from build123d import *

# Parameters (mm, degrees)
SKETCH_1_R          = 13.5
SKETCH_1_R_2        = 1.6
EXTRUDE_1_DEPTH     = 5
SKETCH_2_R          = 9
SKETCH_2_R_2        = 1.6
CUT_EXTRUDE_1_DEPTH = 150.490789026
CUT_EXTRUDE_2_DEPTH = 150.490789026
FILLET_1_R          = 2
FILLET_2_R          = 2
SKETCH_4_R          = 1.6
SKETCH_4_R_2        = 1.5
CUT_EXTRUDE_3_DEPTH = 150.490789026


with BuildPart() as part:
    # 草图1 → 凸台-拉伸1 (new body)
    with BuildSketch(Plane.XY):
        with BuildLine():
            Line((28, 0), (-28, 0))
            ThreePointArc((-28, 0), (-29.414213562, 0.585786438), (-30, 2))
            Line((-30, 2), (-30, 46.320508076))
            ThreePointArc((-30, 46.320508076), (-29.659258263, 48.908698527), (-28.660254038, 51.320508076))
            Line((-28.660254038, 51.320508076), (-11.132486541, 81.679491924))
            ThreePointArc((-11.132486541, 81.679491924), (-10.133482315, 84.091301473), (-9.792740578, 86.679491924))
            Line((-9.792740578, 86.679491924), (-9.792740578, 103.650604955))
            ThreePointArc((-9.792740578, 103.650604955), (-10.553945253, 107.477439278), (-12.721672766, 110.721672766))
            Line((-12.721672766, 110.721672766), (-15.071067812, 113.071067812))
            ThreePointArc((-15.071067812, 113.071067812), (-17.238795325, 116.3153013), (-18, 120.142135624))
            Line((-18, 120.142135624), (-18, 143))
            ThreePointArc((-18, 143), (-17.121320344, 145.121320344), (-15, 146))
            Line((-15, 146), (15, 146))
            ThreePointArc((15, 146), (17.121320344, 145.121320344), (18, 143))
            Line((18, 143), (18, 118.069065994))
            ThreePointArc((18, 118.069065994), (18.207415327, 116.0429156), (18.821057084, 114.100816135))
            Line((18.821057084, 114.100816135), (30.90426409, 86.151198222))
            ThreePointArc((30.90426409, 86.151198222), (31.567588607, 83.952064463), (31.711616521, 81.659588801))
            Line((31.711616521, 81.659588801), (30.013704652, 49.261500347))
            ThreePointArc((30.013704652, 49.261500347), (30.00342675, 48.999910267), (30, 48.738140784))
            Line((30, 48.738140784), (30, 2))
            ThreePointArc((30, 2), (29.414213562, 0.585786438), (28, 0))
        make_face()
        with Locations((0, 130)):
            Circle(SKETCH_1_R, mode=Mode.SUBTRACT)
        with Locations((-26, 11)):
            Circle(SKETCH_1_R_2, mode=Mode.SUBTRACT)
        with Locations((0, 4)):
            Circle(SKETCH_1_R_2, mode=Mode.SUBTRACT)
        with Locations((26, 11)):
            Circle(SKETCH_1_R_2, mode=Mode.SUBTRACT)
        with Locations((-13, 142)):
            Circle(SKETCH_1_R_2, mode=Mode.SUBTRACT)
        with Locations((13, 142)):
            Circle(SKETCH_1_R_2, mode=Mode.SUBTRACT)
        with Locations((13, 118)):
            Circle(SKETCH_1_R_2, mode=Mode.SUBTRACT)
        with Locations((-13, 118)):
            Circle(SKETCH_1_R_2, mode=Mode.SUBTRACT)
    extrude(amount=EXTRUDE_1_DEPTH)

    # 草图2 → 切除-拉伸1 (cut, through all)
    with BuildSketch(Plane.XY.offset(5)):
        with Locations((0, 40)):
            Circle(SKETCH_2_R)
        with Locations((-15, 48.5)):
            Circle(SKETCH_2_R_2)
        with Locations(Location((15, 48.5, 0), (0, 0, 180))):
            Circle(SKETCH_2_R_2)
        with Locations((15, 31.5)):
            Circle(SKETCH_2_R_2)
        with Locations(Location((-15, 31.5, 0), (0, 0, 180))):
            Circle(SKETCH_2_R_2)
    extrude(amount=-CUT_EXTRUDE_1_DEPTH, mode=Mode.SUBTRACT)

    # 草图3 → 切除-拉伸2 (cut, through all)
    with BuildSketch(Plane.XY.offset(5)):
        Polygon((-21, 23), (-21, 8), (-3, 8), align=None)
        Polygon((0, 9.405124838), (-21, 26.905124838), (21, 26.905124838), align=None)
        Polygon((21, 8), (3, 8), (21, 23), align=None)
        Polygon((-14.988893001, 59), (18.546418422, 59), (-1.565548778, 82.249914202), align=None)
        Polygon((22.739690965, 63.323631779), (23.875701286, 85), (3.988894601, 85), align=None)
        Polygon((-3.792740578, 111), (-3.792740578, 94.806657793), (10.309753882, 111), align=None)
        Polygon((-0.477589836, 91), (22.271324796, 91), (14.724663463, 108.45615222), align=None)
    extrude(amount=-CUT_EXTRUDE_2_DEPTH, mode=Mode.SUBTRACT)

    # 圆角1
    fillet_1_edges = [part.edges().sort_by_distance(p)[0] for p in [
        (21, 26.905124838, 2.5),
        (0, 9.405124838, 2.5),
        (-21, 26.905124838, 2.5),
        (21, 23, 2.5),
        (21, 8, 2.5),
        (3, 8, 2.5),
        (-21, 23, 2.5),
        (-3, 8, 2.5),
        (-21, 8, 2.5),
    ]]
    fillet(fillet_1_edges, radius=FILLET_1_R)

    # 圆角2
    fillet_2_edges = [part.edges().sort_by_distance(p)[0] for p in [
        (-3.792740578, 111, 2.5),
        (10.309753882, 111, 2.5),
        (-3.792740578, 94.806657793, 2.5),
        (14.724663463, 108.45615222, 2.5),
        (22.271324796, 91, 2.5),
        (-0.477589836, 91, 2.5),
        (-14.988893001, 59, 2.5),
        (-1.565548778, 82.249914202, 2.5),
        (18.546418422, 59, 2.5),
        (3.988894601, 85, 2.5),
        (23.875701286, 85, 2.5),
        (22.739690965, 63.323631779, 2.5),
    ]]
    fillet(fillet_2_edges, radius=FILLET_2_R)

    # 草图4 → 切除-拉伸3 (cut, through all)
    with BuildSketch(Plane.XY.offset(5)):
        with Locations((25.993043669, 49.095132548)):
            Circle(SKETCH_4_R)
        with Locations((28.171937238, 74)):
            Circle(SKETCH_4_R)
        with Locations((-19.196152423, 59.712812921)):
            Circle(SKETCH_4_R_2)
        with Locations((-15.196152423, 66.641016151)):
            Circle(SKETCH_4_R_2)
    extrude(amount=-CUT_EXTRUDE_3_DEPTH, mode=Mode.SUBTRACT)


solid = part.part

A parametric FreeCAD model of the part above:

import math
import FreeCAD as App
import Part
import Sketcher
from FreeCAD import Vector
Q = App.Units.Quantity


def edges_at(feature, points):
    """Names of the edges that pass closest to the given points."""
    edges = feature.Shape.Edges
    near = lambda p: min(range(len(edges)), key=lambda i: edges[i].distToShape(Part.Vertex(*p))[0])
    return sorted({f"Edge{near(p) + 1}" for p in points})

doc = App.newDocument("Part")
body = doc.addObject("PartDesign::Body", "Body")

# Sketch on XY plane
sketch1 = doc.addObject("Sketcher::SketchObject", "Sketch")
body.addObject(sketch1)
sketch1.AttachmentSupport = (doc.XY_Plane, [""])
sketch1.MapMode = "FlatFace"
sketch1.addGeometry([
    Part.LineSegment(Vector(-28, 0, 0), Vector(28, 0, 0)),  # 0
    Part.ArcOfCircle(Part.Circle(Vector(28, 2, 0), Vector(0, 0, 1), 2), math.radians(-90), math.radians(0)),  # 1
    Part.LineSegment(Vector(30, 2, 0), Vector(30, 48.7, 0)),  # 2
    Part.ArcOfCircle(Part.Circle(Vector(40, 48.7, 0), Vector(0, 0, 1), 10), math.radians(177), math.radians(180)),  # 3
    Part.LineSegment(Vector(30, 49.3, 0), Vector(31.7, 81.7, 0)),  # 4
    Part.ArcOfCircle(Part.Circle(Vector(21.7, 82.2, 0), Vector(0, 0, 1), 10), math.radians(-3), math.radians(23)),  # 5
    Part.LineSegment(Vector(30.9, 86.2, 0), Vector(18.8, 114.1, 0)),  # 6
    Part.ArcOfCircle(Part.Circle(Vector(28, 118.1, 0), Vector(0, 0, 1), 10), math.radians(-180), math.radians(-157)),  # 7
    Part.LineSegment(Vector(18, 118.1, 0), Vector(18, 143, 0)),  # 8
    Part.ArcOfCircle(Part.Circle(Vector(15, 143, 0), Vector(0, 0, 1), 3), math.radians(0), math.radians(90)),  # 9
    Part.LineSegment(Vector(15, 146, 0), Vector(-15, 146, 0)),  # 10
    Part.ArcOfCircle(Part.Circle(Vector(-15, 143, 0), Vector(0, 0, 1), 3), math.radians(90), math.radians(180)),  # 11
    Part.LineSegment(Vector(-18, 143, 0), Vector(-18, 120.1, 0)),  # 12
    Part.ArcOfCircle(Part.Circle(Vector(-8, 120.1, 0), Vector(0, 0, 1), 10), math.radians(180), math.radians(225)),  # 13
    Part.LineSegment(Vector(-15.1, 113.1, 0), Vector(-12.7, 110.7, 0)),  # 14
    Part.ArcOfCircle(Part.Circle(Vector(-19.8, 103.7, 0), Vector(0, 0, 1), 10), math.radians(0), math.radians(45)),  # 15
    Part.LineSegment(Vector(-9.8, 103.7, 0), Vector(-9.8, 86.7, 0)),  # 16
    Part.ArcOfCircle(Part.Circle(Vector(-19.8, 86.7, 0), Vector(0, 0, 1), 10), math.radians(-30), math.radians(0)),  # 17
    Part.LineSegment(Vector(-11.1, 81.7, 0), Vector(-28.7, 51.3, 0)),  # 18
    Part.ArcOfCircle(Part.Circle(Vector(-20, 46.3, 0), Vector(0, 0, 1), 10), math.radians(150), math.radians(180)),  # 19
    Part.LineSegment(Vector(-30, 46.3, 0), Vector(-30, 2, 0)),  # 20
    Part.ArcOfCircle(Part.Circle(Vector(-28, 2, 0), Vector(0, 0, 1), 2), math.radians(-180), math.radians(-90)),  # 21
    Part.Circle(Vector(26, 11, 0), Vector(0, 0, 1), 1.6),  # 22
    Part.Circle(Vector(0, 4, 0), Vector(0, 0, 1), 1.6),  # 23
    Part.Circle(Vector(-26, 11, 0), Vector(0, 0, 1), 1.6),  # 24
    Part.Circle(Vector(13, 118, 0), Vector(0, 0, 1), 1.6),  # 25
    Part.Circle(Vector(13, 142, 0), Vector(0, 0, 1), 1.6),  # 26
    Part.Circle(Vector(-13, 118, 0), Vector(0, 0, 1), 1.6),  # 27
    Part.Circle(Vector(0, 130, 0), Vector(0, 0, 1), 13.5),  # 28
    Part.Circle(Vector(-13, 142, 0), Vector(0, 0, 1), 1.6),  # 29
], False)
sketch1.addConstraint([
    Sketcher.Constraint("Tangent", 0, 2, 1, 1),
    Sketcher.Constraint("Tangent", 1, 2, 2, 1),
    Sketcher.Constraint("Tangent", 2, 2, 3, 2),
    Sketcher.Constraint("Tangent", 3, 1, 4, 1),
    Sketcher.Constraint("Tangent", 4, 2, 5, 1),
    Sketcher.Constraint("Tangent", 5, 2, 6, 1),
    Sketcher.Constraint("Tangent", 6, 2, 7, 2),
    Sketcher.Constraint("Tangent", 7, 1, 8, 1),
    Sketcher.Constraint("Tangent", 8, 2, 9, 1),
    Sketcher.Constraint("Tangent", 9, 2, 10, 1),
    Sketcher.Constraint("Tangent", 10, 2, 11, 1),
    Sketcher.Constraint("Tangent", 11, 2, 12, 1),
    Sketcher.Constraint("Tangent", 12, 2, 13, 1),
    Sketcher.Constraint("Tangent", 13, 2, 14, 1),
    Sketcher.Constraint("Tangent", 14, 2, 15, 2),
    Sketcher.Constraint("Tangent", 15, 1, 16, 1),
    Sketcher.Constraint("Tangent", 16, 2, 17, 2),
    Sketcher.Constraint("Tangent", 17, 1, 18, 1),
    Sketcher.Constraint("Tangent", 18, 2, 19, 1),
    Sketcher.Constraint("Tangent", 19, 2, 20, 1),
    Sketcher.Constraint("Tangent", 20, 2, 21, 1),
    Sketcher.Constraint("Tangent", 21, 2, 0, 1),
    Sketcher.Constraint("Horizontal", 0),
    Sketcher.Constraint("Vertical", 2),
    Sketcher.Constraint("Vertical", 8),
    Sketcher.Constraint("Horizontal", 10),
    Sketcher.Constraint("Vertical", 12),
    Sketcher.Constraint("Vertical", 16),
    Sketcher.Constraint("Vertical", 20),
    Sketcher.Constraint("Equal", 3, 5),
    Sketcher.Constraint("Equal", 5, 7),
    Sketcher.Constraint("Equal", 9, 11),
    Sketcher.Constraint("Equal", 7, 13),
    Sketcher.Constraint("Equal", 13, 15),
    Sketcher.Constraint("Equal", 15, 17),
    Sketcher.Constraint("Equal", 17, 19),
    Sketcher.Constraint("Equal", 1, 21),
    Sketcher.Constraint("Equal", 22, 23),
    Sketcher.Constraint("Equal", 23, 24),
    Sketcher.Constraint("Equal", 24, 25),
    Sketcher.Constraint("Equal", 25, 26),
    Sketcher.Constraint("Equal", 26, 27),
    Sketcher.Constraint("Equal", 27, 29),
    Sketcher.Constraint("Symmetric", 0, 2, 21, 2, -1, 1),
    Sketcher.Constraint("Symmetric", 22, 3, 24, 3, -2),
    Sketcher.Constraint("Symmetric", 25, 3, 27, 3, -2),
    Sketcher.Constraint("Symmetric", 26, 3, 29, 3, -2),
    Sketcher.Constraint("PointOnObject", 23, 3, -2),
    Sketcher.Constraint("PointOnObject", 28, 3, -2),
    Sketcher.Constraint("Vertical", 1, 3, 7, 3),
    Sketcher.Constraint("Vertical", 25, 3, 26, 3),
    Sketcher.Constraint("Diameter", 28, Q("27 mm")),
    Sketcher.Constraint("Radius", 1, Q("2 mm")),
    Sketcher.Constraint("Radius", 3, Q("10 mm")),
    Sketcher.Constraint("Radius", 9, Q("3 mm")),
    Sketcher.Constraint("Diameter", 22, Q("3.2 mm")),
    Sketcher.Constraint("DistanceX", 0, 1, 0, 2, Q("56 mm")),
    Sketcher.Constraint("DistanceX", 10, 2, 10, 1, Q("30 mm")),
    Sketcher.Constraint("Angle", 4, Q("87 deg")),
    Sketcher.Constraint("Angle", 14, Q("-45 deg")),
    Sketcher.Constraint("Angle", 18, Q("-120 deg")),
    Sketcher.Constraint("DistanceY", -1, 1, 9, 3, Q("143 mm")),
    Sketcher.Constraint("DistanceX", -1, 1, 22, 3, Q("26 mm")),
    Sketcher.Constraint("DistanceY", -1, 1, 22, 3, Q("11 mm")),
    Sketcher.Constraint("DistanceY", -1, 1, 23, 3, Q("4 mm")),
    Sketcher.Constraint("DistanceX", -1, 1, 25, 3, Q("13 mm")),
    Sketcher.Constraint("DistanceY", -1, 1, 25, 3, Q("118 mm")),
    Sketcher.Constraint("DistanceY", -1, 1, 26, 3, Q("142 mm")),
    Sketcher.Constraint("DistanceY", -1, 1, 28, 3, Q("130 mm")),
    Sketcher.Constraint("DistanceY", 2, 1, 2, 2, Q("46.738141 mm")),
    Sketcher.Constraint("DistanceY", 20, 2, 20, 1, Q("44.320508 mm")),
    Sketcher.Constraint("DistanceY", -1, 1, 5, 2, Q("86.151198 mm")),
    Sketcher.Constraint("Distance", 4, Q("32.44255 mm")),
    Sketcher.Constraint("DistanceY", 12, 2, 12, 1, Q("22.857864 mm")),
    Sketcher.Constraint("DistanceY", 16, 2, 16, 1, Q("16.971113 mm")),
])
pad1 = doc.addObject("PartDesign::Pad", "Pad")
body.addObject(pad1)
pad1.Profile = sketch1
pad1.Length = 5

# Sketch on XY plane
sketch2 = doc.addObject("Sketcher::SketchObject", "Sketch001")
body.addObject(sketch2)
sketch2.AttachmentSupport = (doc.XY_Plane, [""])
sketch2.MapMode = "FlatFace"
sketch2.AttachmentOffset = App.Placement(Vector(0, 0, 5), App.Rotation())
sketch2.addGeometry([
    Part.Circle(Vector(0, 40, 0), Vector(0, 0, 1), 9),  # 0
    Part.Circle(Vector(-15, 48.5, 0), Vector(0, 0, 1), 1.6),  # 1
    Part.Circle(Vector(15, 48.5, 0), Vector(0, 0, 1), 1.6),  # 2
    Part.Circle(Vector(15, 31.5, 0), Vector(0, 0, 1), 1.6),  # 3
    Part.Circle(Vector(-15, 31.5, 0), Vector(0, 0, 1), 1.6),  # 4
], False)
sketch2.addConstraint([
    Sketcher.Constraint("Equal", 1, 2),
    Sketcher.Constraint("Equal", 2, 3),
    Sketcher.Constraint("Equal", 3, 4),
    Sketcher.Constraint("Symmetric", 1, 3, 2, 3, -2),
    Sketcher.Constraint("Symmetric", 3, 3, 4, 3, -2),
    Sketcher.Constraint("PointOnObject", 0, 3, -2),
    Sketcher.Constraint("Vertical", 2, 3, 3, 3),
    Sketcher.Constraint("Diameter", 0, Q("18 mm")),
    Sketcher.Constraint("Diameter", 1, Q("3.2 mm")),
    Sketcher.Constraint("DistanceY", -1, 1, 0, 3, Q("40 mm")),
    Sketcher.Constraint("DistanceX", 1, 3, -1, 1, Q("15 mm")),
    Sketcher.Constraint("DistanceY", 3, 3, 2, 3, Q("17 mm")),
    Sketcher.Constraint("DistanceY", -1, 1, 1, 3, Q("48.5 mm")),
])
pocket1 = doc.addObject("PartDesign::Pocket", "Pocket")
body.addObject(pocket1)
pocket1.Profile = sketch2
pocket1.Type = "ThroughAll"

# Sketch on XY plane
sketch3 = doc.addObject("Sketcher::SketchObject", "Sketch002")
body.addObject(sketch3)
sketch3.AttachmentSupport = (doc.XY_Plane, [""])
sketch3.MapMode = "FlatFace"
sketch3.AttachmentOffset = App.Placement(Vector(0, 0, 5), App.Rotation())
sketch3.addGeometry([
    Part.LineSegment(Vector(-21, 23, 0), Vector(-21, 8, 0)),  # 0
    Part.LineSegment(Vector(-21, 8, 0), Vector(-3, 8, 0)),  # 1
    Part.LineSegment(Vector(-3, 8, 0), Vector(-21, 23, 0)),  # 2
    Part.LineSegment(Vector(-21, 27, 0), Vector(0, 9, 0)),  # 3
    Part.LineSegment(Vector(0, 9, 0), Vector(21, 27, 0)),  # 4
    Part.LineSegment(Vector(21, 27, 0), Vector(-21, 27, 0)),  # 5
    Part.LineSegment(Vector(3, 8, 0), Vector(21, 8, 0)),  # 6
    Part.LineSegment(Vector(21, 8, 0), Vector(21, 23, 0)),  # 7
    Part.LineSegment(Vector(21, 23, 0), Vector(3, 8, 0)),  # 8
    Part.LineSegment(Vector(-15, 59, 0), Vector(19, 59, 0)),  # 9
    Part.LineSegment(Vector(19, 59, 0), Vector(-2, 82, 0)),  # 10
    Part.LineSegment(Vector(-2, 82, 0), Vector(-15, 59, 0)),  # 11
    Part.LineSegment(Vector(23, 63, 0), Vector(24, 85, 0)),  # 12
    Part.LineSegment(Vector(24, 85, 0), Vector(4, 85, 0)),  # 13
    Part.LineSegment(Vector(4, 85, 0), Vector(23, 63, 0)),  # 14
    Part.LineSegment(Vector(-4, 111, 0), Vector(-4, 95, 0)),  # 15
    Part.LineSegment(Vector(-4, 95, 0), Vector(10, 111, 0)),  # 16
    Part.LineSegment(Vector(10, 111, 0), Vector(-4, 111, 0)),  # 17
    Part.LineSegment(Vector(0, 91, 0), Vector(22, 91, 0)),  # 18
    Part.LineSegment(Vector(22, 91, 0), Vector(15, 108, 0)),  # 19
    Part.LineSegment(Vector(15, 108, 0), Vector(0, 91, 0)),  # 20
], False)
sketch3.addConstraint([
    Sketcher.Constraint("Coincident", 0, 2, 1, 1),
    Sketcher.Constraint("Coincident", 1, 2, 2, 1),
    Sketcher.Constraint("Coincident", 2, 2, 0, 1),
    Sketcher.Constraint("Coincident", 3, 2, 4, 1),
    Sketcher.Constraint("Coincident", 4, 2, 5, 1),
    Sketcher.Constraint("Coincident", 5, 2, 3, 1),
    Sketcher.Constraint("Coincident", 6, 2, 7, 1),
    Sketcher.Constraint("Coincident", 7, 2, 8, 1),
    Sketcher.Constraint("Coincident", 8, 2, 6, 1),
    Sketcher.Constraint("Coincident", 9, 2, 10, 1),
    Sketcher.Constraint("Coincident", 10, 2, 11, 1),
    Sketcher.Constraint("Coincident", 11, 2, 9, 1),
    Sketcher.Constraint("Coincident", 12, 2, 13, 1),
    Sketcher.Constraint("Coincident", 13, 2, 14, 1),
    Sketcher.Constraint("Coincident", 14, 2, 12, 1),
    Sketcher.Constraint("Coincident", 15, 2, 16, 1),
    Sketcher.Constraint("Coincident", 16, 2, 17, 1),
    Sketcher.Constraint("Coincident", 17, 2, 15, 1),
    Sketcher.Constraint("Coincident", 18, 2, 19, 1),
    Sketcher.Constraint("Coincident", 19, 2, 20, 1),
    Sketcher.Constraint("Coincident", 20, 2, 18, 1),
    Sketcher.Constraint("Vertical", 0),
    Sketcher.Constraint("Horizontal", 1),
    Sketcher.Constraint("Horizontal", 5),
    Sketcher.Constraint("Horizontal", 6),
    Sketcher.Constraint("Vertical", 7),
    Sketcher.Constraint("Horizontal", 9),
    Sketcher.Constraint("Horizontal", 13),
    Sketcher.Constraint("Vertical", 15),
    Sketcher.Constraint("Horizontal", 17),
    Sketcher.Constraint("Horizontal", 18),
    Sketcher.Constraint("Symmetric", 0, 2, 6, 2, -2),
    Sketcher.Constraint("PointOnObject", 3, 2, -2),
    Sketcher.Constraint("Parallel", 2, 3),
    Sketcher.Constraint("Parallel", 4, 8),
    Sketcher.Constraint("Parallel", 10, 14),
    Sketcher.Constraint("Parallel", 16, 20),
    Sketcher.Constraint("Horizontal", 2, 2, 7, 2),
    Sketcher.Constraint("Vertical", 2, 2, 5, 2),
    Sketcher.Constraint("Vertical", 4, 2, 6, 2),
    Sketcher.Constraint("DistanceX", 1, 1, 1, 2, Q("18 mm")),
    Sketcher.Constraint("DistanceX", 5, 2, 5, 1, Q("42 mm")),
    Sketcher.Constraint("DistanceY", 0, 2, 0, 1, Q("15 mm")),
    Sketcher.Constraint("Angle", 11, Q("-120 deg")),
    Sketcher.Constraint("Angle", 12, Q("87 deg")),
    Sketcher.Constraint("DistanceY", -1, 1, 0, 2, Q("8 mm")),
    Sketcher.Constraint("DistanceY", -1, 1, 9, 2, Q("59 mm")),
    Sketcher.Constraint("DistanceY", -1, 1, 12, 2, Q("85 mm")),
    Sketcher.Constraint("DistanceY", -1, 1, 16, 2, Q("111 mm")),
    Sketcher.Constraint("DistanceY", -1, 1, 18, 2, Q("91 mm")),
    Sketcher.Constraint("DistanceX", 9, 1, 9, 2, Q("33.535311 mm")),
    Sketcher.Constraint("DistanceX", -1, 1, 12, 2, Q("23.875701 mm")),
    Sketcher.Constraint("Distance", 10, Q("30.741661 mm")),
    Sketcher.Constraint("Distance", 16, Q("21.473348 mm")),
    Sketcher.Constraint("Distance", 20, Q("23.14791 mm")),
    Sketcher.Constraint("DistanceX", 13, 2, 13, 1, Q("19.886807 mm")),
    Sketcher.Constraint("DistanceX", 17, 2, 17, 1, Q("14.102494 mm")),
    Sketcher.Constraint("DistanceX", 18, 1, 18, 2, Q("22.748915 mm")),
    Sketcher.Constraint("DistanceX", -1, 1, 9, 2, Q("18.546418 mm")),
    Sketcher.Constraint("DistanceX", 15, 2, -1, 1, Q("3.792741 mm")),
    Sketcher.Constraint("DistanceX", 20, 2, -1, 1, Q("0.47759 mm")),
    Sketcher.Constraint("DistanceY", 5, 2, 10, 2, Q("55.344789 mm")),
])
pocket2 = doc.addObject("PartDesign::Pocket", "Pocket001")
body.addObject(pocket2)
pocket2.Profile = sketch3
pocket2.Type = "ThroughAll"
doc.recompute()

fillet = doc.addObject("PartDesign::Fillet", "Fillet")
body.addObject(fillet)
fillet.Base = (pocket2, edges_at(pocket2, [
    (21, 26.905, 2.5),
    (0, 9.405, 2.5),
    (-21, 26.905, 2.5),
    (21, 23, 2.5),
    (21, 8, 2.5),
    (3, 8, 2.5),
    (-21, 23, 2.5),
    (-3, 8, 2.5),
    (-21, 8, 2.5),
]))
fillet.Radius = 2
doc.recompute()

fillet2 = doc.addObject("PartDesign::Fillet", "Fillet001")
body.addObject(fillet2)
fillet2.Base = (fillet, edges_at(fillet, [
    (-3.793, 111, 2.5),
    (10.31, 111, 2.5),
    (-3.793, 94.807, 2.5),
    (14.725, 108.456, 2.5),
    (22.271, 91, 2.5),
    (-0.478, 91, 2.5),
    (-14.989, 59, 2.5),
    (-1.566, 82.25, 2.5),
    (18.546, 59, 2.5),
    (3.989, 85, 2.5),
    (23.876, 85, 2.5),
    (22.74, 63.324, 2.5),
]))
fillet2.Radius = 2

# Sketch on XY plane
sketch4 = doc.addObject("Sketcher::SketchObject", "Sketch003")
body.addObject(sketch4)
sketch4.AttachmentSupport = (doc.XY_Plane, [""])
sketch4.MapMode = "FlatFace"
sketch4.AttachmentOffset = App.Placement(Vector(0, 0, 5), App.Rotation())
sketch4.addGeometry([
    Part.Circle(Vector(26, 49.1, 0), Vector(0, 0, 1), 1.6),
    Part.Circle(Vector(28.2, 74, 0), Vector(0, 0, 1), 1.6),
    Part.Circle(Vector(-19.2, 59.7, 0), Vector(0, 0, 1), 1.5),
    Part.Circle(Vector(-15.2, 66.6, 0), Vector(0, 0, 1), 1.5),
], False)
sketch4.addConstraint([
    Sketcher.Constraint("Equal", 0, 1),
    Sketcher.Constraint("Equal", 2, 3),
    Sketcher.Constraint("Diameter", 2, Q("3 mm")),
    Sketcher.Constraint("Diameter", 0, Q("3.2 mm")),
    Sketcher.Constraint("DistanceY", -1, 1, 1, 3, Q("74 mm")),
    Sketcher.Constraint("DistanceX", 2, 3, 3, 3, Q("4 mm")),
    Sketcher.Constraint("DistanceY", 0, 3, 2, 3, Q("10.61768 mm")),
    Sketcher.Constraint("DistanceX", 2, 3, 1, 3, Q("47.36809 mm")),
    Sketcher.Constraint("DistanceX", -1, 1, 0, 3, Q("25.993044 mm")),
    Sketcher.Constraint("DistanceY", -1, 1, 0, 3, Q("49.095133 mm")),
    Sketcher.Constraint("DistanceX", -1, 1, 1, 3, Q("28.171937 mm")),
    Sketcher.Constraint("DistanceY", -1, 1, 3, 3, Q("66.641016 mm")),
])
pocket3 = doc.addObject("PartDesign::Pocket", "Pocket002")
body.addObject(pocket3)
pocket3.Profile = sketch4
pocket3.Type = "ThroughAll"

doc.recompute()
